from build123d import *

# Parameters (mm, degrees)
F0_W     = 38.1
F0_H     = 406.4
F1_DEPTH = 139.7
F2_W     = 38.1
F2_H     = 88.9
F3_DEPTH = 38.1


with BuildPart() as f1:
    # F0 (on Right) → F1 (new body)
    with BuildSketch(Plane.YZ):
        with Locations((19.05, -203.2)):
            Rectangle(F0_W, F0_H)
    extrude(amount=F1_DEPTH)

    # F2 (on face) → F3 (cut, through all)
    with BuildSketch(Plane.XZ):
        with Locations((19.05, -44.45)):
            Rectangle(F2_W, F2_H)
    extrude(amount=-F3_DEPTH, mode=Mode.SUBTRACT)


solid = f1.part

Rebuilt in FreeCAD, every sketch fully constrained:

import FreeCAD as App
import Part
import Sketcher
from FreeCAD import Vector
Q = App.Units.Quantity


def add_polygon(sketch, points):
    """Adds a closed chain of lines whose ends are joined by coincident constraints."""
    first, n = sketch.GeometryCount, len(points)
    for a, b in zip(points, points[1:] + points[:1]):
        sketch.addGeometry(Part.LineSegment(App.Vector(*a, 0), App.Vector(*b, 0)), False)
    for i in range(n):
        sketch.addConstraint(Sketcher.Constraint("Coincident", first + i, 2, first + (i + 1) % n, 1))

doc = App.newDocument("Part")
body = doc.addObject("PartDesign::Body", "Body")

# Sketch on YZ plane
sketch1 = doc.addObject("Sketcher::SketchObject", "Sketch")
body.addObject(sketch1)
sketch1.AttachmentSupport = (doc.YZ_Plane, [""])
sketch1.MapMode = "FlatFace"
add_polygon(sketch1, [(0, 0), (0, -406), (38, -406), (38, 0)])  # lines 0-3
sketch1.addConstraint([
    Sketcher.Constraint("Vertical", 0),
    Sketcher.Constraint("Horizontal", 1),
    Sketcher.Constraint("Vertical", 2),
    Sketcher.Constraint("Horizontal", 3),
    Sketcher.Constraint("Coincident", 3, 2, -1, 1),
    Sketcher.Constraint("DistanceY", 0, 2, 0, 1, Q("16 in")),
    Sketcher.Constraint("DistanceX", 1, 1, 1, 2, Q("1.5 in")),
])
pad1 = doc.addObject("PartDesign::Pad", "Pad")
body.addObject(pad1)
pad1.Profile = sketch1
pad1.Length = Q("5.5 in")

# Sketch on XZ plane
sketch2 = doc.addObject("Sketcher::SketchObject", "Sketch001")
body.addObject(sketch2)
sketch2.AttachmentSupport = (doc.XZ_Plane, [""])
sketch2.MapMode = "FlatFace"
add_polygon(sketch2, [(0, 0), (0, -89), (38, -89), (38, 0)])  # lines 0-3
sketch2.addConstraint([
    Sketcher.Constraint("Vertical", 0),
    Sketcher.Constraint("Horizontal", 1),
    Sketcher.Constraint("Vertical", 2),
    Sketcher.Constraint("Horizontal", 3),
    Sketcher.Constraint("Coincident", 3, 2, -1, 1),
    Sketcher.Constraint("DistanceX", 1, 1, 1, 2, Q("1.5 in")),
    Sketcher.Constraint("DistanceY", 0, 2, 0, 1, Q("3.5 in")),
])
pocket1 = doc.addObject("PartDesign::Pocket", "Pocket")
body.addObject(pocket1)
pocket1.Profile = sketch2
pocket1.Type = "ThroughAll"

doc.recompute()
